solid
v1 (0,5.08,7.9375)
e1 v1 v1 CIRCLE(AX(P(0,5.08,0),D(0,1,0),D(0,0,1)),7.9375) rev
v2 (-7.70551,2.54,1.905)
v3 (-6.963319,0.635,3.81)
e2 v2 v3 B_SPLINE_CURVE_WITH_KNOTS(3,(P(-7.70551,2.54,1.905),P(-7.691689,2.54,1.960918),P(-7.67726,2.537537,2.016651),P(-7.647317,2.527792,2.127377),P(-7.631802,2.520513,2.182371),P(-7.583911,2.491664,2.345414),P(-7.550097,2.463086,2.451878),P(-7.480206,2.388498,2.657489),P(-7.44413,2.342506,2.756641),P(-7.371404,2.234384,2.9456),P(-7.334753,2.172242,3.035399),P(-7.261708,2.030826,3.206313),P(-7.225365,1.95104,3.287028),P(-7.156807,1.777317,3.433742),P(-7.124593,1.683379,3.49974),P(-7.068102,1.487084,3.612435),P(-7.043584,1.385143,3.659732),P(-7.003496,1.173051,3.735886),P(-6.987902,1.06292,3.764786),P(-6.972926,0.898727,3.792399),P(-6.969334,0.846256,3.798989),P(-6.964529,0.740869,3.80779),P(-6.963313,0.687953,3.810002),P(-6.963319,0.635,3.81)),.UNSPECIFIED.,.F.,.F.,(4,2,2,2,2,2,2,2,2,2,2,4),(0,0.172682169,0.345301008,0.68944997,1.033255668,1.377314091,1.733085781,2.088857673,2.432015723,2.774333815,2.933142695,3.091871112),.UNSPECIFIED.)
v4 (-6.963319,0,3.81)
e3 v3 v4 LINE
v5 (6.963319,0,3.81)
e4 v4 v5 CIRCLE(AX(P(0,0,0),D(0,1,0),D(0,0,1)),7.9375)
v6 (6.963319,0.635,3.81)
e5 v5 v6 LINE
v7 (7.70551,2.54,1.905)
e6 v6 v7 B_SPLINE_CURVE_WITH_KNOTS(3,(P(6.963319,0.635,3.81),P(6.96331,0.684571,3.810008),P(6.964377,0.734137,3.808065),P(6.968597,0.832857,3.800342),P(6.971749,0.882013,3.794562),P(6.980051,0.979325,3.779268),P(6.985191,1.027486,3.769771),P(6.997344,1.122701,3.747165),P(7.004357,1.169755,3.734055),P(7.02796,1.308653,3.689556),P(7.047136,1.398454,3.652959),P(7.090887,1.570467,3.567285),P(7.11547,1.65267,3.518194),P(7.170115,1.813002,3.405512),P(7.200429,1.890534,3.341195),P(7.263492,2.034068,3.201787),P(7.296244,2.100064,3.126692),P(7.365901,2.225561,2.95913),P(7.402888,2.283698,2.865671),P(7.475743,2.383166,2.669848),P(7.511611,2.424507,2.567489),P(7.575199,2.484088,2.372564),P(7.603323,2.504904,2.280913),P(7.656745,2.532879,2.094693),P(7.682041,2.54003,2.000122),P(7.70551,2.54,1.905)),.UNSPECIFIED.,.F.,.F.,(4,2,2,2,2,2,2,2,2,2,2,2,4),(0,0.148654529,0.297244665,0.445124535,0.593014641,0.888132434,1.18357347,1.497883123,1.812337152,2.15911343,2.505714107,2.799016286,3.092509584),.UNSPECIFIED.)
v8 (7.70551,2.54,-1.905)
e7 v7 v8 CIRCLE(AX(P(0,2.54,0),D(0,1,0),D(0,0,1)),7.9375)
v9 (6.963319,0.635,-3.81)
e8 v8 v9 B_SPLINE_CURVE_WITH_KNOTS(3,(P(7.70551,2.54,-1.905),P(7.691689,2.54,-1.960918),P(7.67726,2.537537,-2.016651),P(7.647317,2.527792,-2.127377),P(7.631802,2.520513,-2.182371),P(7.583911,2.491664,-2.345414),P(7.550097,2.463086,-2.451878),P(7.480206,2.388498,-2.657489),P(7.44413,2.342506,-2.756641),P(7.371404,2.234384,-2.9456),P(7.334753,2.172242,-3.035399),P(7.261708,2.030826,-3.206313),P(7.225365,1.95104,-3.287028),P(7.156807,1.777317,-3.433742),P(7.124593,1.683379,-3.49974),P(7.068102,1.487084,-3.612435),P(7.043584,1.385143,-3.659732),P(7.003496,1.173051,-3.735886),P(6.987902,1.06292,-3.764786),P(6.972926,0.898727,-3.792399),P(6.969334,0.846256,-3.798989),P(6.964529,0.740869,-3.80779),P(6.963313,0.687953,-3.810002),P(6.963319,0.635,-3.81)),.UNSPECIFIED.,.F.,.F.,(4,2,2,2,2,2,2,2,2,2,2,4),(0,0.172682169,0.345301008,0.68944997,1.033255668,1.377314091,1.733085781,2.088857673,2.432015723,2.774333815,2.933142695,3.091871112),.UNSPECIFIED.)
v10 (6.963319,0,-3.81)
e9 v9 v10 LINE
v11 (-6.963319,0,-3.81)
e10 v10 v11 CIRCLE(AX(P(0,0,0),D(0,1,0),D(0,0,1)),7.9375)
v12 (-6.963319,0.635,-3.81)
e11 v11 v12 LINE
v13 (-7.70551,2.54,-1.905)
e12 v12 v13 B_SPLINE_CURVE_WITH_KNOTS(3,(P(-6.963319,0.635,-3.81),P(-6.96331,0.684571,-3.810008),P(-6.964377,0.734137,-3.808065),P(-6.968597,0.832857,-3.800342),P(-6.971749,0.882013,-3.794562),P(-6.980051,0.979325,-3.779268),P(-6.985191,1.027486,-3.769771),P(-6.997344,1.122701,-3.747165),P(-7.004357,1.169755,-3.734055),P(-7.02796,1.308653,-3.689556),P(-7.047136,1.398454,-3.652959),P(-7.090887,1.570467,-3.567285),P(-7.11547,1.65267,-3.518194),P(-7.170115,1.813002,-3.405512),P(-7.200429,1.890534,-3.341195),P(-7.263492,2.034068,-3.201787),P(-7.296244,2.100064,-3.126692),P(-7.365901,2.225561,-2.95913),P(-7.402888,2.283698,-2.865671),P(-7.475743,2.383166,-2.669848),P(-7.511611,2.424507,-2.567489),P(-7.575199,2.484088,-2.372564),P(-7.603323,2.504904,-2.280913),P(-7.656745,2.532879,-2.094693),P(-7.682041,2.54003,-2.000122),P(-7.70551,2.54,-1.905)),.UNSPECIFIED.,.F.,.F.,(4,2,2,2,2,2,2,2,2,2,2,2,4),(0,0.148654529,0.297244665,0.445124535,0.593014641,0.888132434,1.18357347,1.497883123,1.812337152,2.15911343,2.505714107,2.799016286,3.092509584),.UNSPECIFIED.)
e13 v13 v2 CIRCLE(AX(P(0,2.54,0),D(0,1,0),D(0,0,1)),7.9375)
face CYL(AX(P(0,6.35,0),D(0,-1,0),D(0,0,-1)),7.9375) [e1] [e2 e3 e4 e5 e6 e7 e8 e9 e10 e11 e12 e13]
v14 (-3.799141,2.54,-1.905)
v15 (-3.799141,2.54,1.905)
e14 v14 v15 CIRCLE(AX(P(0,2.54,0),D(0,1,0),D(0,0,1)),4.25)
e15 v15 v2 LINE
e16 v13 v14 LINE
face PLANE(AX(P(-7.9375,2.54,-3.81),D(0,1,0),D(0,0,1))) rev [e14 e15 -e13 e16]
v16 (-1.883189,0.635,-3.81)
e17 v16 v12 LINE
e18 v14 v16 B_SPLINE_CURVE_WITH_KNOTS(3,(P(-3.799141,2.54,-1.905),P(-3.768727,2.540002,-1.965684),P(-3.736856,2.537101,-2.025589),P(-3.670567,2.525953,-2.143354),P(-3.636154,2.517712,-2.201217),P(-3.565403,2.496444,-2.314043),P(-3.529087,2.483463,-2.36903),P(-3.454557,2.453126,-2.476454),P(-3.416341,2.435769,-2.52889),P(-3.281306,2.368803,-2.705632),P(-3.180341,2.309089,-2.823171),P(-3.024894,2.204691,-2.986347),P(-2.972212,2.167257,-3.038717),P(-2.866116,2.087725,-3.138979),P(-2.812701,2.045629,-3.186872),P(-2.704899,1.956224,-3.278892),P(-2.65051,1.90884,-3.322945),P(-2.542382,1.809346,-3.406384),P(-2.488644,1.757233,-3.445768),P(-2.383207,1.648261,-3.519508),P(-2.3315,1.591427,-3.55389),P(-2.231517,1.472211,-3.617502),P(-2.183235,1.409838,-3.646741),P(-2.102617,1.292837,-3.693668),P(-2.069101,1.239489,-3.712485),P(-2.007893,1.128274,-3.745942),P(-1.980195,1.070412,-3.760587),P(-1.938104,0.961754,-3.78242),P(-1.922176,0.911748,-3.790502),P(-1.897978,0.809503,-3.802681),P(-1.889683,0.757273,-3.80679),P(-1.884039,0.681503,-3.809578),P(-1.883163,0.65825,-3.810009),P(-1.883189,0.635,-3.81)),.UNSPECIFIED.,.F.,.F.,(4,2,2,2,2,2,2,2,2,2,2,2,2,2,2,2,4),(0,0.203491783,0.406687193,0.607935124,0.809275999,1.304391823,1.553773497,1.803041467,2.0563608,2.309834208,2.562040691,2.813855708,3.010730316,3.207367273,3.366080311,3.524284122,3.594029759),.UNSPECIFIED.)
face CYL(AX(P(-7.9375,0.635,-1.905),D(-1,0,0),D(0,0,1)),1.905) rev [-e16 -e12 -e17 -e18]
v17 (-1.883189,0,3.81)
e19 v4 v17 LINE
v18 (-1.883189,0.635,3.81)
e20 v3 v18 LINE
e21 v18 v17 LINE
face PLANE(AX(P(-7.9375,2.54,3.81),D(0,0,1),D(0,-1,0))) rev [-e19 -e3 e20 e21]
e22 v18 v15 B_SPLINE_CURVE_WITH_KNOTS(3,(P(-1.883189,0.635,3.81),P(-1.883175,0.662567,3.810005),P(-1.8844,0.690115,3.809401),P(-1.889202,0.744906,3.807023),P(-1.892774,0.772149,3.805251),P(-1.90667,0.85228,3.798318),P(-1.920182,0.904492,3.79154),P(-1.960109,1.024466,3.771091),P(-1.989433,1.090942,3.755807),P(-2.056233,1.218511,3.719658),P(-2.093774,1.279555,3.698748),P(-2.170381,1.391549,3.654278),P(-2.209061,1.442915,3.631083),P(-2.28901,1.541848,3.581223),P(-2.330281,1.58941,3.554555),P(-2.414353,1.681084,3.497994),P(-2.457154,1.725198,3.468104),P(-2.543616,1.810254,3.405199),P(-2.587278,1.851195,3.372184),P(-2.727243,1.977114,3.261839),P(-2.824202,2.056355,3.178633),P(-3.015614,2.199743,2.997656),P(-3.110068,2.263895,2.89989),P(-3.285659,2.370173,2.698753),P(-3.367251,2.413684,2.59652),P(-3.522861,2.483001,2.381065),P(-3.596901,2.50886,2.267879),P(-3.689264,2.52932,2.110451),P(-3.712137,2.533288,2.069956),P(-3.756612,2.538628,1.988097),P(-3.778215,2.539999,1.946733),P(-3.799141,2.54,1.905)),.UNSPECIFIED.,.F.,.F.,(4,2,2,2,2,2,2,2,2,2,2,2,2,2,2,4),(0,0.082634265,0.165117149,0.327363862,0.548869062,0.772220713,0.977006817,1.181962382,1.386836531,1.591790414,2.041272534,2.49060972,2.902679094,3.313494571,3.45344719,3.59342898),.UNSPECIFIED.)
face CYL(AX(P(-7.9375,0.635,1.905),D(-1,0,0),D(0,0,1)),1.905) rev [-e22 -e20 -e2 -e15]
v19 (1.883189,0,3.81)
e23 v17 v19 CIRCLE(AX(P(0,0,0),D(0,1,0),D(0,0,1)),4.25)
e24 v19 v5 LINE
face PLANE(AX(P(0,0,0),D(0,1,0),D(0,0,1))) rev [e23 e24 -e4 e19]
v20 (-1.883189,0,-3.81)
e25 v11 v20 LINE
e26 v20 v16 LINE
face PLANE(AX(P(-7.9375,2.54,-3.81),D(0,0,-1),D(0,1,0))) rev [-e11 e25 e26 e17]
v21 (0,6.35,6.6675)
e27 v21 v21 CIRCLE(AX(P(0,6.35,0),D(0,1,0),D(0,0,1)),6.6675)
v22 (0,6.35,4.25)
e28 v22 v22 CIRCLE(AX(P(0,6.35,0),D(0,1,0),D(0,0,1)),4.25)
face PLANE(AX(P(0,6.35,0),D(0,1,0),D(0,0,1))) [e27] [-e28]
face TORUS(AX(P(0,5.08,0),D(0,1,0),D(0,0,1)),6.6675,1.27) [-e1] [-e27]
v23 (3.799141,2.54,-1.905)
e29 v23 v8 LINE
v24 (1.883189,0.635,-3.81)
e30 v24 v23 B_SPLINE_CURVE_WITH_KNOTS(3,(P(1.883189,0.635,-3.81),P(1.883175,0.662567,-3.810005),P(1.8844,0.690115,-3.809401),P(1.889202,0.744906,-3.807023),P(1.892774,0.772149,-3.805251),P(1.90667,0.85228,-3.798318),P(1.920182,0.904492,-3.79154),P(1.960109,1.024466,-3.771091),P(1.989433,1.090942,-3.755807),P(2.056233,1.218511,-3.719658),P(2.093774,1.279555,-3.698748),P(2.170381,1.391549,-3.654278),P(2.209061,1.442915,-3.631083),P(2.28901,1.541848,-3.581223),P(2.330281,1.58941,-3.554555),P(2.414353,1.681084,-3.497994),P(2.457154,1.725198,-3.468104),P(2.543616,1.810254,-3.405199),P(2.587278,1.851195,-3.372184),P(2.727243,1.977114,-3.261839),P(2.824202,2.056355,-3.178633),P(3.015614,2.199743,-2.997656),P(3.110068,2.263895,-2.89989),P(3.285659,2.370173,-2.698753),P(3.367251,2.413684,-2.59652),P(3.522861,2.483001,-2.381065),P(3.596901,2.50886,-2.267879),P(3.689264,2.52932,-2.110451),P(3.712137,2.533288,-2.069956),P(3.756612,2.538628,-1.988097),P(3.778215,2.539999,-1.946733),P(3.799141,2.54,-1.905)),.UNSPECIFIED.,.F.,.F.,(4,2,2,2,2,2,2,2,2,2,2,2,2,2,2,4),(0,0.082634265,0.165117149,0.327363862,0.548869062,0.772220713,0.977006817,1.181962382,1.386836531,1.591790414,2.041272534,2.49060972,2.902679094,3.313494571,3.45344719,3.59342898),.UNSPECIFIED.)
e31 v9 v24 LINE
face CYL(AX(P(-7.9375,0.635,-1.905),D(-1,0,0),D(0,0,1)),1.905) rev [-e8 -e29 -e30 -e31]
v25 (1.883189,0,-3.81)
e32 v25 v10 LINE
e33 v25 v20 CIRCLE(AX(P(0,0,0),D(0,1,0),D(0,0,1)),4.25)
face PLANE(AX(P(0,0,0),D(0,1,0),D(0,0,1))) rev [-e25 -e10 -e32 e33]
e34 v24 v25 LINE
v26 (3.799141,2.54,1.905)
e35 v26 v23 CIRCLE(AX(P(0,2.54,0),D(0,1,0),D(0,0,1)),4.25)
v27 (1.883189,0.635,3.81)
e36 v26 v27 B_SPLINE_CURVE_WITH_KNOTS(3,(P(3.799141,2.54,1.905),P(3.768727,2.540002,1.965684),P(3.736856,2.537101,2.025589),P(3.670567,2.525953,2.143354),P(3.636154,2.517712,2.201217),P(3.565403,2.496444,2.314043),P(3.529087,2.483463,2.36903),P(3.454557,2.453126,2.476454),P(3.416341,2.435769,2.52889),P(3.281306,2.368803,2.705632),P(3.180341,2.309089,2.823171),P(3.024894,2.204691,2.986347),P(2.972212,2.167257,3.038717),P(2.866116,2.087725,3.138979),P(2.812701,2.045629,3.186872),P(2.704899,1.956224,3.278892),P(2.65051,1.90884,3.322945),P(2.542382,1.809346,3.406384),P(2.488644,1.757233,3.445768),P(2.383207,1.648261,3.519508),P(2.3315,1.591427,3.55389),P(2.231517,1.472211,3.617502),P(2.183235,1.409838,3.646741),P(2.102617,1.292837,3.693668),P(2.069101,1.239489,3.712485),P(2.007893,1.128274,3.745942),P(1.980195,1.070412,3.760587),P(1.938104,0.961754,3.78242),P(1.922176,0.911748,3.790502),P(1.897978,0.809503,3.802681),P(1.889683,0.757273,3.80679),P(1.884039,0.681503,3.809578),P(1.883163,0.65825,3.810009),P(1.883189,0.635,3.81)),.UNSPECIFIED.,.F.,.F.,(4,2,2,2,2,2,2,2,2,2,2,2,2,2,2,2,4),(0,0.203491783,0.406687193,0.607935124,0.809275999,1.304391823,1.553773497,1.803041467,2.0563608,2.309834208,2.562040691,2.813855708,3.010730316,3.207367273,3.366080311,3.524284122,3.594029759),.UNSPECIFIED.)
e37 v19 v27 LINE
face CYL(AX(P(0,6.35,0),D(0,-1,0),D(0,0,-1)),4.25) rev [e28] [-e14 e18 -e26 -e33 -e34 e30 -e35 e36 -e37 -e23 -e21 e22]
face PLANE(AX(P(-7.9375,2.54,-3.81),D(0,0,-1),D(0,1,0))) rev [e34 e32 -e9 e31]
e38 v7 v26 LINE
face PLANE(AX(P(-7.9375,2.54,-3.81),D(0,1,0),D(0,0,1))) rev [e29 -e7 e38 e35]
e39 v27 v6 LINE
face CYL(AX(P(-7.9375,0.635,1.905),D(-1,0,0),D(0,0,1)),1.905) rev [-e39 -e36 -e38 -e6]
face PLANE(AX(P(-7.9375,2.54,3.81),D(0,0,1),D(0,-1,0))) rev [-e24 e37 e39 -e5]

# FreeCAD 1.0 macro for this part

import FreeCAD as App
import Part
import Sketcher
Q = App.Units.Quantity


def edges_at(feature, points):
    """Names of the edges that pass closest to the given points."""
    edges = feature.Shape.Edges
    near = lambda p: min(range(len(edges)), key=lambda i: edges[i].distToShape(Part.Vertex(*p))[0])
    return sorted({f"Edge{near(p) + 1}" for p in points})

doc = App.newDocument("Part")
params = doc.addObject("Spreadsheet::Sheet", "Params")
for row, (alias, value) in enumerate([
    ("sketch1_diameter", "0.625 in"),
    ("pad1_length", "0.25 in"),
    ("sketch2_width", "0.1 in"),
    ("sketch2_height", "0.3 in"),
    ("fillet_radius", "0.075 in"),
    ("fillet2_radius", "0.05 in"),
], start=1):
    params.set(f"A{row}", alias)
    params.set(f"B{row}", "=" + value)
    params.setAlias(f"B{row}", alias)

body = doc.addObject("PartDesign::Body", "Body")

sketch1 = body.newObject("Sketcher::SketchObject", "Sketch")
sketch1.AttachmentSupport = (doc.getObject("XZ_Plane"), [""])
sketch1.MapMode = "FlatFace"
sketch1.addGeometry(Part.Circle(App.Vector(0, 0, 0), App.Vector(0, 0, 1), 7.9), False)
sketch1.addGeometry(Part.Circle(App.Vector(0, 0, 0), App.Vector(0, 0, 1), 4.2), False)
sketch1.addConstraint(Sketcher.Constraint("Coincident", 0, 3, -1, 1))
sketch1.addConstraint(Sketcher.Constraint("Coincident", 1, 3, -1, 1))
sketch1.addConstraint(Sketcher.Constraint("Diameter", 0, Q("0.625 in")))
sketch1.addConstraint(Sketcher.Constraint("Diameter", 1, 8.5))
sketch1.setExpression("Constraints[2]", "Params.sketch1_diameter")
pad1 = body.newObject("PartDesign::Pad", "Pad")
pad1.Profile = sketch1
pad1.setExpression("Length", "Params.pad1_length")
pad1.Reversed = True

sketch2 = body.newObject("Sketcher::SketchObject", "Sketch001")
sketch2.AttachmentSupport = (doc.getObject("YZ_Plane"), [""])
sketch2.MapMode = "FlatFace"
sketch2.addGeometry(Part.LineSegment(App.Vector(2.5, 3.8, 0), App.Vector(0, 3.8, 0)), False)
sketch2.addGeometry(Part.LineSegment(App.Vector(0, 3.8, 0), App.Vector(0, -3.8, 0)), False)
sketch2.addGeometry(Part.LineSegment(App.Vector(0, -3.8, 0), App.Vector(2.5, -3.8, 0)), False)
sketch2.addGeometry(Part.LineSegment(App.Vector(2.5, -3.8, 0), App.Vector(2.5, 3.8, 0)), False)
sketch2.addConstraint(Sketcher.Constraint("Coincident", 0, 2, 1, 1))
sketch2.addConstraint(Sketcher.Constraint("Coincident", 1, 2, 2, 1))
sketch2.addConstraint(Sketcher.Constraint("Coincident", 2, 2, 3, 1))
sketch2.addConstraint(Sketcher.Constraint("Coincident", 3, 2, 0, 1))
sketch2.addConstraint(Sketcher.Constraint("Horizontal", 0))
sketch2.addConstraint(Sketcher.Constraint("Vertical", 1))
sketch2.addConstraint(Sketcher.Constraint("Horizontal", 2))
sketch2.addConstraint(Sketcher.Constraint("Vertical", 3))
sketch2.addConstraint(Sketcher.Constraint("Symmetric", 0, 2, 1, 2, -1, 1))
sketch2.addConstraint(Sketcher.Constraint("DistanceX", 0, 2, 0, 1, Q("0.1 in")))
sketch2.addConstraint(Sketcher.Constraint("DistanceY", 1, 2, 1, 1, Q("0.3 in")))
sketch2.setExpression("Constraints[9]", "Params.sketch2_width")
sketch2.setExpression("Constraints[10]", "Params.sketch2_height")
pocket1 = body.newObject("PartDesign::Pocket", "Pocket")
pocket1.Profile = sketch2
pocket1.Type = "ThroughAll"
pocket1.Midplane = True
doc.recompute()

fillet = body.newObject("PartDesign::Fillet", "Fillet")
fillet.Base = (pocket1, edges_at(pocket1, [
    (4.423, 2.54, 3.81),
    (-4.423, 2.54, 3.81),
    (4.423, 2.54, -3.81),
    (-4.423, 2.54, -3.81),
]))
fillet.setExpression("Radius", "Params.fillet_radius")
doc.recompute()

fillet2 = body.newObject("PartDesign::Fillet", "Fillet001")
fillet2.Base = (fillet, edges_at(fillet, [(0, 6.35, -7.938)]))
fillet2.setExpression("Radius", "Params.fillet2_radius")

doc.recompute()
